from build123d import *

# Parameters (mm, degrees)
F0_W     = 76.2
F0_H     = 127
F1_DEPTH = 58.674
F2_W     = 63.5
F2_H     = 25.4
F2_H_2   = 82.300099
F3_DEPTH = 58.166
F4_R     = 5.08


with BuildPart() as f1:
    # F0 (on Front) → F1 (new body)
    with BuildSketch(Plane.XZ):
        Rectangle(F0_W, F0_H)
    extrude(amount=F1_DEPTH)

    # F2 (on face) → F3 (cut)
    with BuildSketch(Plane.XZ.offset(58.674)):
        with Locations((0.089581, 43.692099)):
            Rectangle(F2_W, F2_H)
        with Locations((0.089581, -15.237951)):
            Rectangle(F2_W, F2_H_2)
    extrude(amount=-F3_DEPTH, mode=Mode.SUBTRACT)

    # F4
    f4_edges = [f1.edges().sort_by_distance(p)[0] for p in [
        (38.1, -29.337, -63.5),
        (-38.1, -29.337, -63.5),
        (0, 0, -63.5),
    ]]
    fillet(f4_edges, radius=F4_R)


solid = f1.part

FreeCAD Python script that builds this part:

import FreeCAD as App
import Part
import Sketcher
from FreeCAD import Vector
Q = App.Units.Quantity


def edges_at(feature, points):
    """Names of the edges that pass closest to the given points."""
    edges = feature.Shape.Edges
    near = lambda p: min(range(len(edges)), key=lambda i: edges[i].distToShape(Part.Vertex(*p))[0])
    return sorted({f"Edge{near(p) + 1}" for p in points})


def add_polygon(sketch, points):
    """Adds a closed chain of lines whose ends are joined by coincident constraints."""
    first, n = sketch.GeometryCount, len(points)
    for a, b in zip(points, points[1:] + points[:1]):
        sketch.addGeometry(Part.LineSegment(App.Vector(*a, 0), App.Vector(*b, 0)), False)
    for i in range(n):
        sketch.addConstraint(Sketcher.Constraint("Coincident", first + i, 2, first + (i + 1) % n, 1))

doc = App.newDocument("Part")
body = doc.addObject("PartDesign::Body", "Body")

sketch1 = doc.addObject("Sketcher::SketchObject", "Sketch")
body.addObject(sketch1)
sketch1.AttachmentSupport = (doc.XZ_Plane, [""])
sketch1.MapMode = "FlatFace"
add_polygon(sketch1, [(-38, 64), (-38, -64), (38, -64), (38, 64)])
sketch1.addConstraint(Sketcher.Constraint("Vertical", 0))
sketch1.addConstraint(Sketcher.Constraint("Horizontal", 1))
sketch1.addConstraint(Sketcher.Constraint("Vertical", 2))
sketch1.addConstraint(Sketcher.Constraint("Horizontal", 3))
sketch1.addConstraint(Sketcher.Constraint("Symmetric", 0, 2, 2, 2, -1, 1))
sketch1.addConstraint(Sketcher.Constraint("DistanceX", 1, 1, 1, 2, Q("3 in")))
sketch1.addConstraint(Sketcher.Constraint("DistanceY", 0, 2, 0, 1, Q("5 in")))
pad1 = doc.addObject("PartDesign::Pad", "Pad")
body.addObject(pad1)
pad1.Profile = sketch1
pad1.Length = Q("2.31 in")

sketch2 = doc.addObject("Sketcher::SketchObject", "Sketch001")
body.addObject(sketch2)
sketch2.AttachmentSupport = (doc.XZ_Plane, [""])
sketch2.MapMode = "FlatFace"
sketch2.AttachmentOffset = App.Placement(Vector(0, 0, 2.31 * 25.4), App.Rotation())
add_polygon(sketch2, [(-32, 56), (-32, 31), (32, 31), (32, 56)])
add_polygon(sketch2, [(-32, 26), (-32, -56), (32, -56), (32, 26)])
sketch2.addConstraint(Sketcher.Constraint("Vertical", 0))
sketch2.addConstraint(Sketcher.Constraint("Horizontal", 1))
sketch2.addConstraint(Sketcher.Constraint("Vertical", 2))
sketch2.addConstraint(Sketcher.Constraint("Horizontal", 3))
sketch2.addConstraint(Sketcher.Constraint("Vertical", 4))
sketch2.addConstraint(Sketcher.Constraint("Horizontal", 5))
sketch2.addConstraint(Sketcher.Constraint("Vertical", 6))
sketch2.addConstraint(Sketcher.Constraint("Horizontal", 7))
sketch2.addConstraint(Sketcher.Constraint("Vertical", 3, 2, 4, 2))
sketch2.addConstraint(Sketcher.Constraint("Vertical", 2, 2, 5, 2))
sketch2.addConstraint(Sketcher.Constraint("DistanceY", 0, 2, 0, 1, Q("1 in")))
sketch2.addConstraint(Sketcher.Constraint("DistanceX", 1, 1, 1, 2, Q("2.5 in")))
sketch2.addConstraint(Sketcher.Constraint("DistanceY", 6, 2, 1, 2, Q("0.2 in")))
sketch2.addConstraint(Sketcher.Constraint("DistanceY", 4, 2, -1, 1, Q("2.22 in")))
sketch2.addConstraint(Sketcher.Constraint("DistanceY", 4, 2, 4, 1, 82.300099))
sketch2.addConstraint(Sketcher.Constraint("DistanceX", 0, 2, -1, 1, 31.660419))
pocket1 = doc.addObject("PartDesign::Pocket", "Pocket")
body.addObject(pocket1)
pocket1.Profile = sketch2
pocket1.Length = Q("2.29 in")
doc.recompute()

fillet = doc.addObject("PartDesign::Fillet", "Fillet")
body.addObject(fillet)
fillet.Base = (pocket1, edges_at(pocket1, [(38.1, -29.337, -63.5), (-38.1, -29.337, -63.5), (0, 0, -63.5)]))
fillet.Radius = Q("0.2 in")

doc.recompute()
